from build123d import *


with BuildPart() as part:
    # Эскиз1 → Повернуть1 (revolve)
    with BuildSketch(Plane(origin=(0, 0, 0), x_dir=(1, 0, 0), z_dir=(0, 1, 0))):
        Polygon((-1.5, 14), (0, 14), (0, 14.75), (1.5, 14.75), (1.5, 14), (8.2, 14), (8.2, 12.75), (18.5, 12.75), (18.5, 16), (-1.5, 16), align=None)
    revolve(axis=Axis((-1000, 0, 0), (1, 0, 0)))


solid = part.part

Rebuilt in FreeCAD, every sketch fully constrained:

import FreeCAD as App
import Part
import Sketcher
from FreeCAD import Vector
Q = App.Units.Quantity

doc = App.newDocument("Part")
body = doc.addObject("PartDesign::Body", "Body")

# Sketch on XZ plane
sketch1 = doc.addObject("Sketcher::SketchObject", "Sketch")
body.addObject(sketch1)
sketch1.AttachmentSupport = (doc.XZ_Plane, [""])
sketch1.MapMode = "FlatFace"
sketch1.addGeometry([
    Part.LineSegment(Vector(-1.5, -14, 0), Vector(0, -14, 0)),  # 0
    Part.LineSegment(Vector(0, -14, 0), Vector(0, -14.75, 0)),  # 1
    Part.LineSegment(Vector(0, -14.75, 0), Vector(1.5, -14.75, 0)),  # 2
    Part.LineSegment(Vector(1.5, -14.75, 0), Vector(1.5, -14, 0)),  # 3
    Part.LineSegment(Vector(1.5, -14, 0), Vector(8.2, -14, 0)),  # 4
    Part.LineSegment(Vector(8.2, -14, 0), Vector(8.2, -12.75, 0)),  # 5
    Part.LineSegment(Vector(8.2, -12.75, 0), Vector(18.5, -12.75, 0)),  # 6
    Part.LineSegment(Vector(18.5, -12.75, 0), Vector(18.5, -16, 0)),  # 7
    Part.LineSegment(Vector(18.5, -16, 0), Vector(-1.5, -16, 0)),  # 8
    Part.LineSegment(Vector(-1.5, -16, 0), Vector(-1.5, -14, 0)),  # 9
], False)
sketch1.addConstraint([
    Sketcher.Constraint("Coincident", 0, 2, 1, 1),
    Sketcher.Constraint("Coincident", 1, 2, 2, 1),
    Sketcher.Constraint("Coincident", 2, 2, 3, 1),
    Sketcher.Constraint("Coincident", 3, 2, 4, 1),
    Sketcher.Constraint("Coincident", 4, 2, 5, 1),
    Sketcher.Constraint("Coincident", 5, 2, 6, 1),
    Sketcher.Constraint("Coincident", 6, 2, 7, 1),
    Sketcher.Constraint("Coincident", 7, 2, 8, 1),
    Sketcher.Constraint("Coincident", 8, 2, 9, 1),
    Sketcher.Constraint("Coincident", 9, 2, 0, 1),
    Sketcher.Constraint("Horizontal", 0),
    Sketcher.Constraint("Vertical", 1),
    Sketcher.Constraint("Horizontal", 2),
    Sketcher.Constraint("Vertical", 3),
    Sketcher.Constraint("Horizontal", 4),
    Sketcher.Constraint("Vertical", 5),
    Sketcher.Constraint("Horizontal", 6),
    Sketcher.Constraint("Vertical", 7),
    Sketcher.Constraint("Horizontal", 8),
    Sketcher.Constraint("Vertical", 9),
    Sketcher.Constraint("Symmetric", 3, 2, 9, 2, -2),
    Sketcher.Constraint("PointOnObject", 0, 2, -2),
    Sketcher.Constraint("DistanceX", 8, 2, 8, 1, Q("20 mm")),
    Sketcher.Constraint("DistanceY", 9, 1, 9, 2, Q("2 mm")),
    Sketcher.Constraint("DistanceX", 0, 1, 0, 2, Q("1.5 mm")),
    Sketcher.Constraint("DistanceX", 4, 1, 4, 2, Q("6.7 mm")),
    Sketcher.Constraint("DistanceY", 0, 2, -1, 1, Q("14 mm")),
    Sketcher.Constraint("DistanceY", 2, 2, 5, 2, Q("2 mm")),
    Sketcher.Constraint("DistanceY", 1, 2, 1, 1, Q("0.75 mm")),
])
revolution = doc.addObject("PartDesign::Revolution", "Revolution")
body.addObject(revolution)
revolution.Profile = sketch1
revolution.ReferenceAxis = (sketch1, ["H_Axis"])
revolution.Angle = 360

doc.recompute()
